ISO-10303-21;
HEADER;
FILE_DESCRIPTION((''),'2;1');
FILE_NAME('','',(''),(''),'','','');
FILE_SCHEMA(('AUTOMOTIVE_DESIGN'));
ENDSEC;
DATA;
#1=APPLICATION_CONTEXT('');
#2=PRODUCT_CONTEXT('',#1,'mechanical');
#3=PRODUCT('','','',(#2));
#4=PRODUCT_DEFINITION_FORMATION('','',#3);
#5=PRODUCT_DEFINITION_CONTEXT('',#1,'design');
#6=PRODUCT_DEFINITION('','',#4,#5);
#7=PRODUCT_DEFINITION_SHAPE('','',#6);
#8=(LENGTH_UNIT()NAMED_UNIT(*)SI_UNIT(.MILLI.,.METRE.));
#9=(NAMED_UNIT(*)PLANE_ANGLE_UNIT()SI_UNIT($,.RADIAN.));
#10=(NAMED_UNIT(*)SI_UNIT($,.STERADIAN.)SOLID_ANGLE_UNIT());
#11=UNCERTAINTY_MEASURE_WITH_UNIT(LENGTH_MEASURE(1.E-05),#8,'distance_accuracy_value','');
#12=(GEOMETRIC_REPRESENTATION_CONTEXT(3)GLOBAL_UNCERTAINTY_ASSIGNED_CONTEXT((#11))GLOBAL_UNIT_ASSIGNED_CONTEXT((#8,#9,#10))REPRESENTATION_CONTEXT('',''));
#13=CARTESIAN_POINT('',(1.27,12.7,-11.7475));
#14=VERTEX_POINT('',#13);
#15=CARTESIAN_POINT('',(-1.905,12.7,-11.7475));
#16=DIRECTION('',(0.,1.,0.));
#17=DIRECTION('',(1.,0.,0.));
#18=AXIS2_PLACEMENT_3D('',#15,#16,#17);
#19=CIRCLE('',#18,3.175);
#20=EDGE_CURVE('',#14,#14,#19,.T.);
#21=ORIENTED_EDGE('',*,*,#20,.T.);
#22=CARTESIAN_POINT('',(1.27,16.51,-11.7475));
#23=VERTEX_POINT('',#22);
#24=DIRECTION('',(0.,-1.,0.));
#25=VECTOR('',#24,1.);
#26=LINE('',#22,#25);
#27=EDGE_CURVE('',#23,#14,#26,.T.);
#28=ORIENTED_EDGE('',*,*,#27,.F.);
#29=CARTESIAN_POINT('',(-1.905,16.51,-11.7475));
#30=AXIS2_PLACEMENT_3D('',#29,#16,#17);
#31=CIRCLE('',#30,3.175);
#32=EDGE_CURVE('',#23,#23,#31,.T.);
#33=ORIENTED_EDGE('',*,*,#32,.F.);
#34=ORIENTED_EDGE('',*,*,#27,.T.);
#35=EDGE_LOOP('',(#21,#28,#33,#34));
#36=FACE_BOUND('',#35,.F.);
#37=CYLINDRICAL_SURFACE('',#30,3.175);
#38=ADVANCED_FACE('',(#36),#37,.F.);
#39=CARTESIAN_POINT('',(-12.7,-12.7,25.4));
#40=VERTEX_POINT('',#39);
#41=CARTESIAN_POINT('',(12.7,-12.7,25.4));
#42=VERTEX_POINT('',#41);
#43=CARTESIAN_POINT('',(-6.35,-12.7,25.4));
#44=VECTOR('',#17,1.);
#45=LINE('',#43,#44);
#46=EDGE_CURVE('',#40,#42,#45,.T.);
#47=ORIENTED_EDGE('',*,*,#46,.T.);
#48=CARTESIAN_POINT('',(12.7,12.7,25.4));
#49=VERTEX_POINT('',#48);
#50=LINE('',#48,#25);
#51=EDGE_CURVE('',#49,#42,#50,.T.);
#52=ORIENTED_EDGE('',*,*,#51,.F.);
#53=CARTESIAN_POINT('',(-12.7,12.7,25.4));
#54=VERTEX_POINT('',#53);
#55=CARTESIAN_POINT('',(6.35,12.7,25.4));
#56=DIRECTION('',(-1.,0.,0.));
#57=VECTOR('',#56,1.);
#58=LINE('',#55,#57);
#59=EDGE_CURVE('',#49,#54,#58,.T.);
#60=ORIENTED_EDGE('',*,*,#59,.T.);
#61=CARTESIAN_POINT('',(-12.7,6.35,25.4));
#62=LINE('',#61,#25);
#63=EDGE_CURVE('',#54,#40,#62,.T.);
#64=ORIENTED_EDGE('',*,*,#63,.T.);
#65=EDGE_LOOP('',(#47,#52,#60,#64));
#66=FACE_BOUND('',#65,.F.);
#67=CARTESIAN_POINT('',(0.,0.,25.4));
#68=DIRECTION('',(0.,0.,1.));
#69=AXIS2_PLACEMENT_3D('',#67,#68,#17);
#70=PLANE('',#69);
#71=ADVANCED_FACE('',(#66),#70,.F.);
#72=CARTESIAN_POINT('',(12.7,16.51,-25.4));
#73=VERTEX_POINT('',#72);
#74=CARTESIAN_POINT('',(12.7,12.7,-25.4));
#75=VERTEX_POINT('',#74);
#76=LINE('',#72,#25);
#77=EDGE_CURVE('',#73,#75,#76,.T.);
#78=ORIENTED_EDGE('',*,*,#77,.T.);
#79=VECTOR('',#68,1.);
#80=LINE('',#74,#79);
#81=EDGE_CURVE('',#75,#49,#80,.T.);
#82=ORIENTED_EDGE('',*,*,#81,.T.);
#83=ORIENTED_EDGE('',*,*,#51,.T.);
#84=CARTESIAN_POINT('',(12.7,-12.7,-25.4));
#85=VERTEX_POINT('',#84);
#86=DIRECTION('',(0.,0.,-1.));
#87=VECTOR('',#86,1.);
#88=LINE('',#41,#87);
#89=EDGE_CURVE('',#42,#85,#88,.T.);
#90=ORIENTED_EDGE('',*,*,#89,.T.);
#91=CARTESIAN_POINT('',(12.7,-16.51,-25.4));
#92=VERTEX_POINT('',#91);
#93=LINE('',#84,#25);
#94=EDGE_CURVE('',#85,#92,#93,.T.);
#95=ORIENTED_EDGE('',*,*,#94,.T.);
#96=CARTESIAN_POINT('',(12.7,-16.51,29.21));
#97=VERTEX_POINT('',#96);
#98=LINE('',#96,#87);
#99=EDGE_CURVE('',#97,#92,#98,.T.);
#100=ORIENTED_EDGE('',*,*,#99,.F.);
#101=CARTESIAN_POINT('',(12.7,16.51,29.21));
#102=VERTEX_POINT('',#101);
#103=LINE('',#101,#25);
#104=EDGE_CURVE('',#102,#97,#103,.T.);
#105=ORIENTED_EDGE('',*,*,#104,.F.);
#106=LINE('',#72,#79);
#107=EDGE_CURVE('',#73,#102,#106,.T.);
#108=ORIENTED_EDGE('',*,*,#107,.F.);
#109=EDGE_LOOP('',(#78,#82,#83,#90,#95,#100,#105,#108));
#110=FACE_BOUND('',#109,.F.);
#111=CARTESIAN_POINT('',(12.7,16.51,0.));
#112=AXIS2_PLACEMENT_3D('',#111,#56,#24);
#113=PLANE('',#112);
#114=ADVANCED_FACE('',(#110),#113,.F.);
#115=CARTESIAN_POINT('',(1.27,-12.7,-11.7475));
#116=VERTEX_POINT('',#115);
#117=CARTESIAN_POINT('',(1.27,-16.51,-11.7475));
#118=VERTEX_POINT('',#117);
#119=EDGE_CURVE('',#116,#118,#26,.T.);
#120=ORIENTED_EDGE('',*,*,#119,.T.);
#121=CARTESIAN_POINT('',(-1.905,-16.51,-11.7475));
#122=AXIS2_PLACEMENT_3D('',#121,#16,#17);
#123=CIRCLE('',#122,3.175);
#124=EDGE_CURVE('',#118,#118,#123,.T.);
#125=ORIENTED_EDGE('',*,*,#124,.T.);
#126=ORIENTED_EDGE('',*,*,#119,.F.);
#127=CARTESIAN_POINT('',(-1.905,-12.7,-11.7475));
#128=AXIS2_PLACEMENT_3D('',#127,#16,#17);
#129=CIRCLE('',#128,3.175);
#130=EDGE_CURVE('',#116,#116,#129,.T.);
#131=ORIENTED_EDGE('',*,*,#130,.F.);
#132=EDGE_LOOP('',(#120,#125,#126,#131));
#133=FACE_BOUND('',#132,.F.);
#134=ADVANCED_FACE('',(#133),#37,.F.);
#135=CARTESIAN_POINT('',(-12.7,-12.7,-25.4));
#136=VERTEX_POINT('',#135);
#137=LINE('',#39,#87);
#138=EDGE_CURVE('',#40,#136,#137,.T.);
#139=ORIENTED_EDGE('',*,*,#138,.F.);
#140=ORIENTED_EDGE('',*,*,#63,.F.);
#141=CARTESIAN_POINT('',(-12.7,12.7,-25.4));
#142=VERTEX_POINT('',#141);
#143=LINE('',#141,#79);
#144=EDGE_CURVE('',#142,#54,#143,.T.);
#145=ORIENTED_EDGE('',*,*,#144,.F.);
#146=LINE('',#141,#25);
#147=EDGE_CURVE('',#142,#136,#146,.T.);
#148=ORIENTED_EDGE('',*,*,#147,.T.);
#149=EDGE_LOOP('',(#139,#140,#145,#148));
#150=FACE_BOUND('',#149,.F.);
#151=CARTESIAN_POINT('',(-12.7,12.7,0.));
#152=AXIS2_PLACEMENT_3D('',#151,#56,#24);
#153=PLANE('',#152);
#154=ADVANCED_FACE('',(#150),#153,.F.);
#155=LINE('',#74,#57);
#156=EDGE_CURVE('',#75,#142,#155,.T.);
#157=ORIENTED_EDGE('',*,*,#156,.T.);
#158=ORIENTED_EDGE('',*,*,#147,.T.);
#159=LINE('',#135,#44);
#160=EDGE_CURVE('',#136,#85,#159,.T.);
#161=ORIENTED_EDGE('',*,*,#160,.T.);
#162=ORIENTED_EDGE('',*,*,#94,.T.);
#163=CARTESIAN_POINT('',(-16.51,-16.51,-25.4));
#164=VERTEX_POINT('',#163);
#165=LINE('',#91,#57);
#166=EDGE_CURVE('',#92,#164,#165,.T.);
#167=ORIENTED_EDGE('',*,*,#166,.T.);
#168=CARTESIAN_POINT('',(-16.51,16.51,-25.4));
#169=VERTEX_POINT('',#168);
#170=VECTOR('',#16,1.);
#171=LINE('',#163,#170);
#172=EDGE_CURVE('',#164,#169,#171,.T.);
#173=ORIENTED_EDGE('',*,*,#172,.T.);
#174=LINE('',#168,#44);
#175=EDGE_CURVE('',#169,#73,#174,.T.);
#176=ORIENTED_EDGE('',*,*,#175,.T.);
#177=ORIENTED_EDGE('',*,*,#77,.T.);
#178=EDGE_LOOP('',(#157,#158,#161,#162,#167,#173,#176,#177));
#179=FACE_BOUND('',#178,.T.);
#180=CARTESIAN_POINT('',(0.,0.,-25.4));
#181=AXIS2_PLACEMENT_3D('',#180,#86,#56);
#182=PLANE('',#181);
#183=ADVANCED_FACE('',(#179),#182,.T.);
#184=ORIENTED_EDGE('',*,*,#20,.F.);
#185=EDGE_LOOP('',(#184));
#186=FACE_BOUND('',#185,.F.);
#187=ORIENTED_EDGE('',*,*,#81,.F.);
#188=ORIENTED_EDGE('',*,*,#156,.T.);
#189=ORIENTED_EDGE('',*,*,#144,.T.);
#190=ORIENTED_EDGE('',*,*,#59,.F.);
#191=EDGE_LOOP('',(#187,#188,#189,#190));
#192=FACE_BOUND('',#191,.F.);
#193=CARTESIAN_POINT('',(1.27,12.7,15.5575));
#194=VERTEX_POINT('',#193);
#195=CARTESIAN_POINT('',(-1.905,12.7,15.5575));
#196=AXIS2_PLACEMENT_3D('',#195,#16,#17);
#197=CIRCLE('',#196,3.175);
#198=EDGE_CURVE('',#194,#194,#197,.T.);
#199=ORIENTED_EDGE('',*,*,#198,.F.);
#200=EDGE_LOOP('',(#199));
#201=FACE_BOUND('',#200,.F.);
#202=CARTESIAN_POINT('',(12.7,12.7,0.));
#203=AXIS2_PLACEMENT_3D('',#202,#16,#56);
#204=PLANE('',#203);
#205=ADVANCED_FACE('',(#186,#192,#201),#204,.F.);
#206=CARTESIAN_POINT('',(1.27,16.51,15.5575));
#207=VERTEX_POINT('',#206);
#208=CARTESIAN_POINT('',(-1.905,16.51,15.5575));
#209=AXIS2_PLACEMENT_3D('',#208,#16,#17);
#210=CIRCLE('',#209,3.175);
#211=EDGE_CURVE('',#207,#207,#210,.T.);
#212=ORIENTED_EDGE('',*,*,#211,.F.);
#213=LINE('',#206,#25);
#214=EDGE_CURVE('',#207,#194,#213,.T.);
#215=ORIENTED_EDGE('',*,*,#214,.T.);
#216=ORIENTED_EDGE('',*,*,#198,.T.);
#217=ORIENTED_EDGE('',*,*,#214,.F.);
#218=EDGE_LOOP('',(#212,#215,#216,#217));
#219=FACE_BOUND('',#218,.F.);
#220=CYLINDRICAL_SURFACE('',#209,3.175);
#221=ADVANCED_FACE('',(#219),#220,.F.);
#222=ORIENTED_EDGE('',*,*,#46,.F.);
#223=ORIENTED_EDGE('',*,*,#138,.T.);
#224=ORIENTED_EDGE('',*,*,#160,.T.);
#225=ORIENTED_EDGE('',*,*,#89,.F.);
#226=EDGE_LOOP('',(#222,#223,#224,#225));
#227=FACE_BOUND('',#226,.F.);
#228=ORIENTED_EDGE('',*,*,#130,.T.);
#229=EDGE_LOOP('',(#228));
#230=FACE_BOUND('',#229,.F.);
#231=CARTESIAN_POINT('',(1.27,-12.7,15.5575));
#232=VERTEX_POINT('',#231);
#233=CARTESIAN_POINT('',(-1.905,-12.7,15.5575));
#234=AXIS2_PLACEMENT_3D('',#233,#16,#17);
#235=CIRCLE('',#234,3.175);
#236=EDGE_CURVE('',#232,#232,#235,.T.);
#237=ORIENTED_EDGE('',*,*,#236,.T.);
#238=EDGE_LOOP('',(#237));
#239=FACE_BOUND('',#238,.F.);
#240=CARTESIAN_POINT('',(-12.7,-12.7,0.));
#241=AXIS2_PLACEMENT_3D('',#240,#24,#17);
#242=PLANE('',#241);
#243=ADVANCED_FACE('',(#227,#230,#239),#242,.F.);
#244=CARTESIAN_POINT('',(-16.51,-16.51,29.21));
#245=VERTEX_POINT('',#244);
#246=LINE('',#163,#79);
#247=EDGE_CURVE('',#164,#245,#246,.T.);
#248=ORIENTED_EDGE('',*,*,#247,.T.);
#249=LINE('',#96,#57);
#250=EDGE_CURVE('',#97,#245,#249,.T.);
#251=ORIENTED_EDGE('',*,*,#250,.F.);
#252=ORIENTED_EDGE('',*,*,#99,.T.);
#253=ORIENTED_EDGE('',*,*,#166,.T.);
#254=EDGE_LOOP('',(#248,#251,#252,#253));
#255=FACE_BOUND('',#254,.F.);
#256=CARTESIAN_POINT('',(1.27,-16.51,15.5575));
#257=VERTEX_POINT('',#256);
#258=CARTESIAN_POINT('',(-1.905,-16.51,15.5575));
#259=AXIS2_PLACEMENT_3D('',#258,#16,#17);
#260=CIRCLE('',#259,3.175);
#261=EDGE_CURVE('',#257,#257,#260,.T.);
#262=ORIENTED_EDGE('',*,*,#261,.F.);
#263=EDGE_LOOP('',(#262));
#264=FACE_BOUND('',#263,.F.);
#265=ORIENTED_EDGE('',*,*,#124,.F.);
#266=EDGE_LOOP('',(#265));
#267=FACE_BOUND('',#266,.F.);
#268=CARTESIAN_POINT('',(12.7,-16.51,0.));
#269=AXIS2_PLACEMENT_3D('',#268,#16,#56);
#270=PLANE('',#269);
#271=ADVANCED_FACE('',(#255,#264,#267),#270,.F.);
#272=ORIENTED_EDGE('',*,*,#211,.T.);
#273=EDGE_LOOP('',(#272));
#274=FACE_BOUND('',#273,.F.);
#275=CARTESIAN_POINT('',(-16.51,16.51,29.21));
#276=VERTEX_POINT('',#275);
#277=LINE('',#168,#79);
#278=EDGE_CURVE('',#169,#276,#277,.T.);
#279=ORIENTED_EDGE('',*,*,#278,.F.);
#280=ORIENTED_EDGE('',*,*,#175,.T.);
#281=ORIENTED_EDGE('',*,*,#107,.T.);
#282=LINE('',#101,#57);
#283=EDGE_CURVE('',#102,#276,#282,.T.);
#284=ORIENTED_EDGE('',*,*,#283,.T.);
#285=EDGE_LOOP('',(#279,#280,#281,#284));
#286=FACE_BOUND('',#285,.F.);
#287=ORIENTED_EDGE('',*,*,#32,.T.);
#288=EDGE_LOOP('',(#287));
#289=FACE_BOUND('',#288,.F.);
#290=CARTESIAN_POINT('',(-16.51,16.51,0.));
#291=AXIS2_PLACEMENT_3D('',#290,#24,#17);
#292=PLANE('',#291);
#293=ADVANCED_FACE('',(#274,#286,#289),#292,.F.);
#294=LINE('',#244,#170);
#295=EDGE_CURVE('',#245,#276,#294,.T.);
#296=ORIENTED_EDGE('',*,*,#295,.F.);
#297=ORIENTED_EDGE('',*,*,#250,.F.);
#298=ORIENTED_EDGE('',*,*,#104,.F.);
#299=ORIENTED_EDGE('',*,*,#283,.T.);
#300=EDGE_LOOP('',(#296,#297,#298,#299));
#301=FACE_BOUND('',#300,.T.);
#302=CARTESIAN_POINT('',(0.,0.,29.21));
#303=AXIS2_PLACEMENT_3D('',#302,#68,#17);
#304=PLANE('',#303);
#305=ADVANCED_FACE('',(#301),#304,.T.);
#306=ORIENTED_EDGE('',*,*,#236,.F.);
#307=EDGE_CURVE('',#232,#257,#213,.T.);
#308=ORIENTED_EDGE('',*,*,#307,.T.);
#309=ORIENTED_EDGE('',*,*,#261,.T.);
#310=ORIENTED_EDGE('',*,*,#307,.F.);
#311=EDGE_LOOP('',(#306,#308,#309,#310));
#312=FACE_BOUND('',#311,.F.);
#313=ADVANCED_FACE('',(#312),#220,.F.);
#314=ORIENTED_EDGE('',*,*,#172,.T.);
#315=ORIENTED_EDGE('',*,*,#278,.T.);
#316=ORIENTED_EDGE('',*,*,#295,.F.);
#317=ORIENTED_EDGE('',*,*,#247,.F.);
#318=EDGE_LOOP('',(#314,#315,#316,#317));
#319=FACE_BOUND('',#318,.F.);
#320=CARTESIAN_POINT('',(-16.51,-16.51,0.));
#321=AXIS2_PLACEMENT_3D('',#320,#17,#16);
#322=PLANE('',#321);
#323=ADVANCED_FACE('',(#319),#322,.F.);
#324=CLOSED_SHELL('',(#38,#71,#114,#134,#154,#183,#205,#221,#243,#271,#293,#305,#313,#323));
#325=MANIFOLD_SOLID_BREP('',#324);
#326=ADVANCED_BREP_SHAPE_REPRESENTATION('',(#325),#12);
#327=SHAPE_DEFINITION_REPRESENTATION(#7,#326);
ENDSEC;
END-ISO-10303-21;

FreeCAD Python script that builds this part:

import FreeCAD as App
import Part
import Sketcher
Q = App.Units.Quantity

doc = App.newDocument("Part")
body = doc.addObject("PartDesign::Body", "Body")

# Sketch on XY plane
sketch1 = body.newObject("Sketcher::SketchObject", "Sketch")
sketch1.AttachmentSupport = (doc.getObject("XY_Plane"), [""])
sketch1.MapMode = "FlatFace"
sketch1.addGeometry(Part.LineSegment(App.Vector(12.7, -12.7, 0), App.Vector(-12.7, -12.7, 0)), False)
sketch1.addGeometry(Part.LineSegment(App.Vector(-12.7, -12.7, 0), App.Vector(-12.7, 12.7, 0)), False)
sketch1.addGeometry(Part.LineSegment(App.Vector(-12.7, 12.7, 0), App.Vector(12.7, 12.7, 0)), False)
sketch1.addGeometry(Part.LineSegment(App.Vector(12.7, 12.7, 0), App.Vector(12.7, 16.5, 0)), False)
sketch1.addGeometry(Part.LineSegment(App.Vector(12.7, 16.5, 0), App.Vector(-16.5, 16.5, 0)), False)
sketch1.addGeometry(Part.LineSegment(App.Vector(-16.5, 16.5, 0), App.Vector(-16.5, -16.5, 0)), False)
sketch1.addGeometry(Part.LineSegment(App.Vector(-16.5, -16.5, 0), App.Vector(12.7, -16.5, 0)), False)
sketch1.addGeometry(Part.LineSegment(App.Vector(12.7, -16.5, 0), App.Vector(12.7, -12.7, 0)), False)
sketch1.addConstraint(Sketcher.Constraint("Coincident", 0, 2, 1, 1))
sketch1.addConstraint(Sketcher.Constraint("Coincident", 1, 2, 2, 1))
sketch1.addConstraint(Sketcher.Constraint("Coincident", 2, 2, 3, 1))
sketch1.addConstraint(Sketcher.Constraint("Coincident", 3, 2, 4, 1))
sketch1.addConstraint(Sketcher.Constraint("Coincident", 4, 2, 5, 1))
sketch1.addConstraint(Sketcher.Constraint("Coincident", 5, 2, 6, 1))
sketch1.addConstraint(Sketcher.Constraint("Coincident", 6, 2, 7, 1))
sketch1.addConstraint(Sketcher.Constraint("Coincident", 7, 2, 0, 1))
sketch1.addConstraint(Sketcher.Constraint("Horizontal", 0))
sketch1.addConstraint(Sketcher.Constraint("Vertical", 1))
sketch1.addConstraint(Sketcher.Constraint("Horizontal", 2))
sketch1.addConstraint(Sketcher.Constraint("Vertical", 3))
sketch1.addConstraint(Sketcher.Constraint("Horizontal", 4))
sketch1.addConstraint(Sketcher.Constraint("Vertical", 5))
sketch1.addConstraint(Sketcher.Constraint("Horizontal", 6))
sketch1.addConstraint(Sketcher.Constraint("Vertical", 7))
sketch1.addConstraint(Sketcher.Constraint("Symmetric", 0, 2, 2, 2, -1, 1))
sketch1.addConstraint(Sketcher.Constraint("Symmetric", 3, 2, 6, 2, -1))
sketch1.addConstraint(Sketcher.Constraint("Equal", 2, 1))
sketch1.addConstraint(Sketcher.Constraint("DistanceX", 0, 2, 0, 1, Q("1 in")))
sketch1.addConstraint(Sketcher.Constraint("DistanceX", 4, 2, 4, 1, Q("1.15 in")))
sketch1.addConstraint(Sketcher.Constraint("DistanceY", 3, 1, 3, 2, Q("0.15 in")))
pad1 = body.newObject("PartDesign::Pad", "Pad")
pad1.Profile = sketch1
pad1.Length = Q("1.15 in")

# Sketch on XY plane
sketch2 = body.newObject("Sketcher::SketchObject", "Sketch001")
sketch2.AttachmentSupport = (doc.getObject("XY_Plane"), [""])
sketch2.MapMode = "FlatFace"
sketch2.AttachmentOffset = App.Placement(App.Vector(0, 0, 1.15 * 25.4), App.Rotation())
sketch2.addGeometry(Part.LineSegment(App.Vector(13, -17, 0), App.Vector(13, 17, 0)), False)
sketch2.addGeometry(Part.LineSegment(App.Vector(13, 17, 0), App.Vector(-17, 17, 0)), False)
sketch2.addGeometry(Part.LineSegment(App.Vector(-17, 17, 0), App.Vector(-17, -17, 0)), False)
sketch2.addGeometry(Part.LineSegment(App.Vector(-17, -17, 0), App.Vector(13, -17, 0)), False)
sketch2.addConstraint(Sketcher.Constraint("Coincident", 0, 2, 1, 1))
sketch2.addConstraint(Sketcher.Constraint("Coincident", 1, 2, 2, 1))
sketch2.addConstraint(Sketcher.Constraint("Coincident", 2, 2, 3, 1))
sketch2.addConstraint(Sketcher.Constraint("Coincident", 3, 2, 0, 1))
sketch2.addConstraint(Sketcher.Constraint("Vertical", 0))
sketch2.addConstraint(Sketcher.Constraint("Horizontal", 1))
sketch2.addConstraint(Sketcher.Constraint("Vertical", 2))
sketch2.addConstraint(Sketcher.Constraint("Horizontal", 3))
sketch2.addConstraint(Sketcher.Constraint("DistanceY", 0, 1, 0, 2, Q("1.3 in")))
sketch2.addConstraint(Sketcher.Constraint("DistanceX", 1, 2, 1, 1, Q("1.15 in")))
sketch2.addConstraint(Sketcher.Constraint("DistanceX", -1, 1, 0, 2, Q("0.5 in")))
sketch2.addConstraint(Sketcher.Constraint("DistanceY", -1, 1, 0, 2, Q("0.65 in")))
pad2 = body.newObject("PartDesign::Pad", "Pad001")
pad2.Profile = sketch2
pad2.Length = Q("0.15 in")
pad2.Reversed = True

# Sketch on XY plane
sketch3 = body.newObject("Sketcher::SketchObject", "Sketch002")
sketch3.AttachmentSupport = (doc.getObject("XY_Plane"), [""])
sketch3.MapMode = "FlatFace"
sketch3.addGeometry(Part.LineSegment(App.Vector(-12.7, 12.7, 0), App.Vector(-12.7, -12.7, 0)), False)
sketch3.addGeometry(Part.LineSegment(App.Vector(-12.7, -12.7, 0), App.Vector(12.7, -12.7, 0)), False)
sketch3.addGeometry(Part.LineSegment(App.Vector(12.7, -12.7, 0), App.Vector(12.7, -16.5, 0)), False)
sketch3.addGeometry(Part.LineSegment(App.Vector(12.7, -16.5, 0), App.Vector(-16.5, -16.5, 0)), False)
sketch3.addGeometry(Part.LineSegment(App.Vector(-16.5, -16.5, 0), App.Vector(-16.5, 16.5, 0)), False)
sketch3.addGeometry(Part.LineSegment(App.Vector(-16.5, 16.5, 0), App.Vector(12.7, 16.5, 0)), False)
sketch3.addGeometry(Part.LineSegment(App.Vector(12.7, 16.5, 0), App.Vector(12.7, 12.7, 0)), False)
sketch3.addGeometry(Part.LineSegment(App.Vector(12.7, 12.7, 0), App.Vector(-12.7, 12.7, 0)), False)
sketch3.addConstraint(Sketcher.Constraint("Coincident", 0, 2, 1, 1))
sketch3.addConstraint(Sketcher.Constraint("Coincident", 1, 2, 2, 1))
sketch3.addConstraint(Sketcher.Constraint("Coincident", 2, 2, 3, 1))
sketch3.addConstraint(Sketcher.Constraint("Coincident", 3, 2, 4, 1))
sketch3.addConstraint(Sketcher.Constraint("Coincident", 4, 2, 5, 1))
sketch3.addConstraint(Sketcher.Constraint("Coincident", 5, 2, 6, 1))
sketch3.addConstraint(Sketcher.Constraint("Coincident", 6, 2, 7, 1))
sketch3.addConstraint(Sketcher.Constraint("Coincident", 7, 2, 0, 1))
sketch3.addConstraint(Sketcher.Constraint("Vertical", 0))
sketch3.addConstraint(Sketcher.Constraint("Horizontal", 1))
sketch3.addConstraint(Sketcher.Constraint("Vertical", 2))
sketch3.addConstraint(Sketcher.Constraint("Horizontal", 3))
sketch3.addConstraint(Sketcher.Constraint("Vertical", 4))
sketch3.addConstraint(Sketcher.Constraint("Horizontal", 5))
sketch3.addConstraint(Sketcher.Constraint("Vertical", 6))
sketch3.addConstraint(Sketcher.Constraint("Horizontal", 7))
sketch3.addConstraint(Sketcher.Constraint("Symmetric", 0, 2, 6, 2, -1, 1))
sketch3.addConstraint(Sketcher.Constraint("Symmetric", 2, 2, 5, 2, -1))
sketch3.addConstraint(Sketcher.Constraint("Equal", 7, 0))
sketch3.addConstraint(Sketcher.Constraint("DistanceX", 1, 1, 1, 2, Q("1 in")))
sketch3.addConstraint(Sketcher.Constraint("DistanceY", 4, 1, 4, 2, Q("1.3 in")))
sketch3.addConstraint(Sketcher.Constraint("DistanceX", 3, 2, 3, 1, Q("1.15 in")))
pad3 = body.newObject("PartDesign::Pad", "Pad002")
pad3.Profile = sketch3
pad3.Length = Q("1 in")
pad3.Reversed = True

# Sketch on XZ plane
sketch4 = body.newObject("Sketcher::SketchObject", "Sketch003")
sketch4.AttachmentSupport = (doc.getObject("XZ_Plane"), [""])
sketch4.MapMode = "FlatFace"
sketch4.AttachmentOffset = App.Placement(App.Vector(0, 0, -0.65 * 25.4), App.Rotation())
sketch4.addGeometry(Part.Circle(App.Vector(-1.9, -11.7, 0), App.Vector(0, 0, 1), 3.2), False)
sketch4.addGeometry(Part.Circle(App.Vector(-1.9, 15.6, 0), App.Vector(0, 0, 1), 3.2), False)
sketch4.addConstraint(Sketcher.Constraint("Equal", 0, 1))
sketch4.addConstraint(Sketcher.Constraint("Vertical", 0, 3, 1, 3))
sketch4.addConstraint(Sketcher.Constraint("Diameter", 0, Q("0.25 in")))
sketch4.addConstraint(Sketcher.Constraint("DistanceX", 0, 3, -1, 1, Q("0.075 in")))
sketch4.addConstraint(Sketcher.Constraint("DistanceY", 0, 3, 1, 3, Q("1.075 in")))
sketch4.addConstraint(Sketcher.Constraint("DistanceY", 0, 3, -1, 1, Q("0.4625 in")))
pocket1 = body.newObject("PartDesign::Pocket", "Pocket")
pocket1.Profile = sketch4
pocket1.Length = Q("2 in")
pocket1.Reversed = True

doc.recompute()
